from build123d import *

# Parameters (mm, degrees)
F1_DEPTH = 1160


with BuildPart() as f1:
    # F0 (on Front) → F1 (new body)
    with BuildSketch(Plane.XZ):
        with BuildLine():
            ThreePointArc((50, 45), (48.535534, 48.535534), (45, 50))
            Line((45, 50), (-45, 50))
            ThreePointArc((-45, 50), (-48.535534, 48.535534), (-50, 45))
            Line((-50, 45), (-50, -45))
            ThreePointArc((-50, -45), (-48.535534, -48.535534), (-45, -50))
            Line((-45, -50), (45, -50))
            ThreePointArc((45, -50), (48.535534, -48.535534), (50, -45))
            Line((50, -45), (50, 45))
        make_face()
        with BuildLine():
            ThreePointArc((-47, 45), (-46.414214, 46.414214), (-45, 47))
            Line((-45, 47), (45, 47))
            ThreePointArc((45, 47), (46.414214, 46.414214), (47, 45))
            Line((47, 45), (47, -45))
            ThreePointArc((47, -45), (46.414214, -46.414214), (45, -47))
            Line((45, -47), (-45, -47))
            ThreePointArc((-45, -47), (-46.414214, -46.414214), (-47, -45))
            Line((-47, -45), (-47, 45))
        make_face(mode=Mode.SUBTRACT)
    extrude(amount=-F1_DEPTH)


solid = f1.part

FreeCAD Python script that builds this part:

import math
import FreeCAD as App
import Part
import Sketcher

doc = App.newDocument("Part")
body = doc.addObject("PartDesign::Body", "Body")

sketch1 = body.newObject("Sketcher::SketchObject", "Sketch")
sketch1.AttachmentSupport = (doc.getObject("XZ_Plane"), [""])
sketch1.MapMode = "FlatFace"
sketch1.addGeometry([
    Part.ArcOfCircle(Part.Circle(App.Vector(45, 45, 0), App.Vector(0, 0, 1), 5), math.radians(0), math.radians(90)),
    Part.LineSegment(App.Vector(45, 50, 0), App.Vector(-45, 50, 0)),
    Part.ArcOfCircle(Part.Circle(App.Vector(-45, 45, 0), App.Vector(0, 0, 1), 5), math.radians(90), math.radians(180)),
    Part.LineSegment(App.Vector(-50, 45, 0), App.Vector(-50, -45, 0)),
    Part.ArcOfCircle(Part.Circle(App.Vector(-45, -45, 0), App.Vector(0, 0, 1), 5), math.radians(180), math.radians(270)),
    Part.LineSegment(App.Vector(-45, -50, 0), App.Vector(45, -50, 0)),
    Part.ArcOfCircle(Part.Circle(App.Vector(45, -45, 0), App.Vector(0, 0, 1), 5), math.radians(-90), math.radians(0)),
    Part.LineSegment(App.Vector(50, -45, 0), App.Vector(50, 45, 0)),
    Part.LineSegment(App.Vector(-47, -45, 0), App.Vector(-47, 45, 0)),
    Part.ArcOfCircle(Part.Circle(App.Vector(-45, 45, 0), App.Vector(0, 0, 1), 2), math.radians(90), math.radians(180)),
    Part.LineSegment(App.Vector(-45, 47, 0), App.Vector(45, 47, 0)),
    Part.ArcOfCircle(Part.Circle(App.Vector(45, 45, 0), App.Vector(0, 0, 1), 2), math.radians(0), math.radians(90)),
    Part.LineSegment(App.Vector(47, 45, 0), App.Vector(47, -45, 0)),
    Part.ArcOfCircle(Part.Circle(App.Vector(45, -45, 0), App.Vector(0, 0, 1), 2), math.radians(-90), math.radians(0)),
    Part.LineSegment(App.Vector(45, -47, 0), App.Vector(-45, -47, 0)),
    Part.ArcOfCircle(Part.Circle(App.Vector(-45, -45, 0), App.Vector(0, 0, 1), 2), math.radians(180), math.radians(270)),
], False)
sketch1.addConstraint([
    Sketcher.Constraint("Tangent", 0, 2, 1, 1),
    Sketcher.Constraint("Tangent", 1, 2, 2, 1),
    Sketcher.Constraint("Tangent", 2, 2, 3, 1),
    Sketcher.Constraint("Tangent", 3, 2, 4, 1),
    Sketcher.Constraint("Tangent", 4, 2, 5, 1),
    Sketcher.Constraint("Tangent", 5, 2, 6, 1),
    Sketcher.Constraint("Tangent", 6, 2, 7, 1),
    Sketcher.Constraint("Tangent", 7, 2, 0, 1),
    Sketcher.Constraint("Tangent", 8, 2, 9, 2),
    Sketcher.Constraint("Tangent", 9, 1, 10, 1),
    Sketcher.Constraint("Tangent", 10, 2, 11, 2),
    Sketcher.Constraint("Tangent", 11, 1, 12, 1),
    Sketcher.Constraint("Tangent", 12, 2, 13, 2),
    Sketcher.Constraint("Tangent", 13, 1, 14, 1),
    Sketcher.Constraint("Tangent", 14, 2, 15, 2),
    Sketcher.Constraint("Tangent", 15, 1, 8, 1),
    Sketcher.Constraint("Horizontal", 1),
    Sketcher.Constraint("Vertical", 3),
    Sketcher.Constraint("Horizontal", 5),
    Sketcher.Constraint("Vertical", 7),
    Sketcher.Constraint("Vertical", 8),
    Sketcher.Constraint("Horizontal", 10),
    Sketcher.Constraint("Vertical", 12),
    Sketcher.Constraint("Horizontal", 14),
    Sketcher.Constraint("Coincident", 9, 3, 2, 3),
    Sketcher.Constraint("Coincident", 11, 3, 0, 3),
    Sketcher.Constraint("Coincident", 13, 3, 6, 3),
    Sketcher.Constraint("Equal", 0, 2),
    Sketcher.Constraint("Equal", 2, 4),
    Sketcher.Constraint("Equal", 4, 6),
    Sketcher.Constraint("Equal", 13, 15),
    Sketcher.Constraint("Symmetric", 0, 3, 4, 3, -1, 1),
    Sketcher.Constraint("Equal", 14, 3),
    Sketcher.Constraint("Radius", 0, 5.0),
    Sketcher.Constraint("Radius", 9, 1.999999),
    Sketcher.Constraint("DistanceX", 1, 2, 1, 1, 90.0),
])
pad1 = body.newObject("PartDesign::Pad", "Pad")
pad1.Profile = sketch1
pad1.Length = 1160
pad1.Reversed = True

doc.recompute()
